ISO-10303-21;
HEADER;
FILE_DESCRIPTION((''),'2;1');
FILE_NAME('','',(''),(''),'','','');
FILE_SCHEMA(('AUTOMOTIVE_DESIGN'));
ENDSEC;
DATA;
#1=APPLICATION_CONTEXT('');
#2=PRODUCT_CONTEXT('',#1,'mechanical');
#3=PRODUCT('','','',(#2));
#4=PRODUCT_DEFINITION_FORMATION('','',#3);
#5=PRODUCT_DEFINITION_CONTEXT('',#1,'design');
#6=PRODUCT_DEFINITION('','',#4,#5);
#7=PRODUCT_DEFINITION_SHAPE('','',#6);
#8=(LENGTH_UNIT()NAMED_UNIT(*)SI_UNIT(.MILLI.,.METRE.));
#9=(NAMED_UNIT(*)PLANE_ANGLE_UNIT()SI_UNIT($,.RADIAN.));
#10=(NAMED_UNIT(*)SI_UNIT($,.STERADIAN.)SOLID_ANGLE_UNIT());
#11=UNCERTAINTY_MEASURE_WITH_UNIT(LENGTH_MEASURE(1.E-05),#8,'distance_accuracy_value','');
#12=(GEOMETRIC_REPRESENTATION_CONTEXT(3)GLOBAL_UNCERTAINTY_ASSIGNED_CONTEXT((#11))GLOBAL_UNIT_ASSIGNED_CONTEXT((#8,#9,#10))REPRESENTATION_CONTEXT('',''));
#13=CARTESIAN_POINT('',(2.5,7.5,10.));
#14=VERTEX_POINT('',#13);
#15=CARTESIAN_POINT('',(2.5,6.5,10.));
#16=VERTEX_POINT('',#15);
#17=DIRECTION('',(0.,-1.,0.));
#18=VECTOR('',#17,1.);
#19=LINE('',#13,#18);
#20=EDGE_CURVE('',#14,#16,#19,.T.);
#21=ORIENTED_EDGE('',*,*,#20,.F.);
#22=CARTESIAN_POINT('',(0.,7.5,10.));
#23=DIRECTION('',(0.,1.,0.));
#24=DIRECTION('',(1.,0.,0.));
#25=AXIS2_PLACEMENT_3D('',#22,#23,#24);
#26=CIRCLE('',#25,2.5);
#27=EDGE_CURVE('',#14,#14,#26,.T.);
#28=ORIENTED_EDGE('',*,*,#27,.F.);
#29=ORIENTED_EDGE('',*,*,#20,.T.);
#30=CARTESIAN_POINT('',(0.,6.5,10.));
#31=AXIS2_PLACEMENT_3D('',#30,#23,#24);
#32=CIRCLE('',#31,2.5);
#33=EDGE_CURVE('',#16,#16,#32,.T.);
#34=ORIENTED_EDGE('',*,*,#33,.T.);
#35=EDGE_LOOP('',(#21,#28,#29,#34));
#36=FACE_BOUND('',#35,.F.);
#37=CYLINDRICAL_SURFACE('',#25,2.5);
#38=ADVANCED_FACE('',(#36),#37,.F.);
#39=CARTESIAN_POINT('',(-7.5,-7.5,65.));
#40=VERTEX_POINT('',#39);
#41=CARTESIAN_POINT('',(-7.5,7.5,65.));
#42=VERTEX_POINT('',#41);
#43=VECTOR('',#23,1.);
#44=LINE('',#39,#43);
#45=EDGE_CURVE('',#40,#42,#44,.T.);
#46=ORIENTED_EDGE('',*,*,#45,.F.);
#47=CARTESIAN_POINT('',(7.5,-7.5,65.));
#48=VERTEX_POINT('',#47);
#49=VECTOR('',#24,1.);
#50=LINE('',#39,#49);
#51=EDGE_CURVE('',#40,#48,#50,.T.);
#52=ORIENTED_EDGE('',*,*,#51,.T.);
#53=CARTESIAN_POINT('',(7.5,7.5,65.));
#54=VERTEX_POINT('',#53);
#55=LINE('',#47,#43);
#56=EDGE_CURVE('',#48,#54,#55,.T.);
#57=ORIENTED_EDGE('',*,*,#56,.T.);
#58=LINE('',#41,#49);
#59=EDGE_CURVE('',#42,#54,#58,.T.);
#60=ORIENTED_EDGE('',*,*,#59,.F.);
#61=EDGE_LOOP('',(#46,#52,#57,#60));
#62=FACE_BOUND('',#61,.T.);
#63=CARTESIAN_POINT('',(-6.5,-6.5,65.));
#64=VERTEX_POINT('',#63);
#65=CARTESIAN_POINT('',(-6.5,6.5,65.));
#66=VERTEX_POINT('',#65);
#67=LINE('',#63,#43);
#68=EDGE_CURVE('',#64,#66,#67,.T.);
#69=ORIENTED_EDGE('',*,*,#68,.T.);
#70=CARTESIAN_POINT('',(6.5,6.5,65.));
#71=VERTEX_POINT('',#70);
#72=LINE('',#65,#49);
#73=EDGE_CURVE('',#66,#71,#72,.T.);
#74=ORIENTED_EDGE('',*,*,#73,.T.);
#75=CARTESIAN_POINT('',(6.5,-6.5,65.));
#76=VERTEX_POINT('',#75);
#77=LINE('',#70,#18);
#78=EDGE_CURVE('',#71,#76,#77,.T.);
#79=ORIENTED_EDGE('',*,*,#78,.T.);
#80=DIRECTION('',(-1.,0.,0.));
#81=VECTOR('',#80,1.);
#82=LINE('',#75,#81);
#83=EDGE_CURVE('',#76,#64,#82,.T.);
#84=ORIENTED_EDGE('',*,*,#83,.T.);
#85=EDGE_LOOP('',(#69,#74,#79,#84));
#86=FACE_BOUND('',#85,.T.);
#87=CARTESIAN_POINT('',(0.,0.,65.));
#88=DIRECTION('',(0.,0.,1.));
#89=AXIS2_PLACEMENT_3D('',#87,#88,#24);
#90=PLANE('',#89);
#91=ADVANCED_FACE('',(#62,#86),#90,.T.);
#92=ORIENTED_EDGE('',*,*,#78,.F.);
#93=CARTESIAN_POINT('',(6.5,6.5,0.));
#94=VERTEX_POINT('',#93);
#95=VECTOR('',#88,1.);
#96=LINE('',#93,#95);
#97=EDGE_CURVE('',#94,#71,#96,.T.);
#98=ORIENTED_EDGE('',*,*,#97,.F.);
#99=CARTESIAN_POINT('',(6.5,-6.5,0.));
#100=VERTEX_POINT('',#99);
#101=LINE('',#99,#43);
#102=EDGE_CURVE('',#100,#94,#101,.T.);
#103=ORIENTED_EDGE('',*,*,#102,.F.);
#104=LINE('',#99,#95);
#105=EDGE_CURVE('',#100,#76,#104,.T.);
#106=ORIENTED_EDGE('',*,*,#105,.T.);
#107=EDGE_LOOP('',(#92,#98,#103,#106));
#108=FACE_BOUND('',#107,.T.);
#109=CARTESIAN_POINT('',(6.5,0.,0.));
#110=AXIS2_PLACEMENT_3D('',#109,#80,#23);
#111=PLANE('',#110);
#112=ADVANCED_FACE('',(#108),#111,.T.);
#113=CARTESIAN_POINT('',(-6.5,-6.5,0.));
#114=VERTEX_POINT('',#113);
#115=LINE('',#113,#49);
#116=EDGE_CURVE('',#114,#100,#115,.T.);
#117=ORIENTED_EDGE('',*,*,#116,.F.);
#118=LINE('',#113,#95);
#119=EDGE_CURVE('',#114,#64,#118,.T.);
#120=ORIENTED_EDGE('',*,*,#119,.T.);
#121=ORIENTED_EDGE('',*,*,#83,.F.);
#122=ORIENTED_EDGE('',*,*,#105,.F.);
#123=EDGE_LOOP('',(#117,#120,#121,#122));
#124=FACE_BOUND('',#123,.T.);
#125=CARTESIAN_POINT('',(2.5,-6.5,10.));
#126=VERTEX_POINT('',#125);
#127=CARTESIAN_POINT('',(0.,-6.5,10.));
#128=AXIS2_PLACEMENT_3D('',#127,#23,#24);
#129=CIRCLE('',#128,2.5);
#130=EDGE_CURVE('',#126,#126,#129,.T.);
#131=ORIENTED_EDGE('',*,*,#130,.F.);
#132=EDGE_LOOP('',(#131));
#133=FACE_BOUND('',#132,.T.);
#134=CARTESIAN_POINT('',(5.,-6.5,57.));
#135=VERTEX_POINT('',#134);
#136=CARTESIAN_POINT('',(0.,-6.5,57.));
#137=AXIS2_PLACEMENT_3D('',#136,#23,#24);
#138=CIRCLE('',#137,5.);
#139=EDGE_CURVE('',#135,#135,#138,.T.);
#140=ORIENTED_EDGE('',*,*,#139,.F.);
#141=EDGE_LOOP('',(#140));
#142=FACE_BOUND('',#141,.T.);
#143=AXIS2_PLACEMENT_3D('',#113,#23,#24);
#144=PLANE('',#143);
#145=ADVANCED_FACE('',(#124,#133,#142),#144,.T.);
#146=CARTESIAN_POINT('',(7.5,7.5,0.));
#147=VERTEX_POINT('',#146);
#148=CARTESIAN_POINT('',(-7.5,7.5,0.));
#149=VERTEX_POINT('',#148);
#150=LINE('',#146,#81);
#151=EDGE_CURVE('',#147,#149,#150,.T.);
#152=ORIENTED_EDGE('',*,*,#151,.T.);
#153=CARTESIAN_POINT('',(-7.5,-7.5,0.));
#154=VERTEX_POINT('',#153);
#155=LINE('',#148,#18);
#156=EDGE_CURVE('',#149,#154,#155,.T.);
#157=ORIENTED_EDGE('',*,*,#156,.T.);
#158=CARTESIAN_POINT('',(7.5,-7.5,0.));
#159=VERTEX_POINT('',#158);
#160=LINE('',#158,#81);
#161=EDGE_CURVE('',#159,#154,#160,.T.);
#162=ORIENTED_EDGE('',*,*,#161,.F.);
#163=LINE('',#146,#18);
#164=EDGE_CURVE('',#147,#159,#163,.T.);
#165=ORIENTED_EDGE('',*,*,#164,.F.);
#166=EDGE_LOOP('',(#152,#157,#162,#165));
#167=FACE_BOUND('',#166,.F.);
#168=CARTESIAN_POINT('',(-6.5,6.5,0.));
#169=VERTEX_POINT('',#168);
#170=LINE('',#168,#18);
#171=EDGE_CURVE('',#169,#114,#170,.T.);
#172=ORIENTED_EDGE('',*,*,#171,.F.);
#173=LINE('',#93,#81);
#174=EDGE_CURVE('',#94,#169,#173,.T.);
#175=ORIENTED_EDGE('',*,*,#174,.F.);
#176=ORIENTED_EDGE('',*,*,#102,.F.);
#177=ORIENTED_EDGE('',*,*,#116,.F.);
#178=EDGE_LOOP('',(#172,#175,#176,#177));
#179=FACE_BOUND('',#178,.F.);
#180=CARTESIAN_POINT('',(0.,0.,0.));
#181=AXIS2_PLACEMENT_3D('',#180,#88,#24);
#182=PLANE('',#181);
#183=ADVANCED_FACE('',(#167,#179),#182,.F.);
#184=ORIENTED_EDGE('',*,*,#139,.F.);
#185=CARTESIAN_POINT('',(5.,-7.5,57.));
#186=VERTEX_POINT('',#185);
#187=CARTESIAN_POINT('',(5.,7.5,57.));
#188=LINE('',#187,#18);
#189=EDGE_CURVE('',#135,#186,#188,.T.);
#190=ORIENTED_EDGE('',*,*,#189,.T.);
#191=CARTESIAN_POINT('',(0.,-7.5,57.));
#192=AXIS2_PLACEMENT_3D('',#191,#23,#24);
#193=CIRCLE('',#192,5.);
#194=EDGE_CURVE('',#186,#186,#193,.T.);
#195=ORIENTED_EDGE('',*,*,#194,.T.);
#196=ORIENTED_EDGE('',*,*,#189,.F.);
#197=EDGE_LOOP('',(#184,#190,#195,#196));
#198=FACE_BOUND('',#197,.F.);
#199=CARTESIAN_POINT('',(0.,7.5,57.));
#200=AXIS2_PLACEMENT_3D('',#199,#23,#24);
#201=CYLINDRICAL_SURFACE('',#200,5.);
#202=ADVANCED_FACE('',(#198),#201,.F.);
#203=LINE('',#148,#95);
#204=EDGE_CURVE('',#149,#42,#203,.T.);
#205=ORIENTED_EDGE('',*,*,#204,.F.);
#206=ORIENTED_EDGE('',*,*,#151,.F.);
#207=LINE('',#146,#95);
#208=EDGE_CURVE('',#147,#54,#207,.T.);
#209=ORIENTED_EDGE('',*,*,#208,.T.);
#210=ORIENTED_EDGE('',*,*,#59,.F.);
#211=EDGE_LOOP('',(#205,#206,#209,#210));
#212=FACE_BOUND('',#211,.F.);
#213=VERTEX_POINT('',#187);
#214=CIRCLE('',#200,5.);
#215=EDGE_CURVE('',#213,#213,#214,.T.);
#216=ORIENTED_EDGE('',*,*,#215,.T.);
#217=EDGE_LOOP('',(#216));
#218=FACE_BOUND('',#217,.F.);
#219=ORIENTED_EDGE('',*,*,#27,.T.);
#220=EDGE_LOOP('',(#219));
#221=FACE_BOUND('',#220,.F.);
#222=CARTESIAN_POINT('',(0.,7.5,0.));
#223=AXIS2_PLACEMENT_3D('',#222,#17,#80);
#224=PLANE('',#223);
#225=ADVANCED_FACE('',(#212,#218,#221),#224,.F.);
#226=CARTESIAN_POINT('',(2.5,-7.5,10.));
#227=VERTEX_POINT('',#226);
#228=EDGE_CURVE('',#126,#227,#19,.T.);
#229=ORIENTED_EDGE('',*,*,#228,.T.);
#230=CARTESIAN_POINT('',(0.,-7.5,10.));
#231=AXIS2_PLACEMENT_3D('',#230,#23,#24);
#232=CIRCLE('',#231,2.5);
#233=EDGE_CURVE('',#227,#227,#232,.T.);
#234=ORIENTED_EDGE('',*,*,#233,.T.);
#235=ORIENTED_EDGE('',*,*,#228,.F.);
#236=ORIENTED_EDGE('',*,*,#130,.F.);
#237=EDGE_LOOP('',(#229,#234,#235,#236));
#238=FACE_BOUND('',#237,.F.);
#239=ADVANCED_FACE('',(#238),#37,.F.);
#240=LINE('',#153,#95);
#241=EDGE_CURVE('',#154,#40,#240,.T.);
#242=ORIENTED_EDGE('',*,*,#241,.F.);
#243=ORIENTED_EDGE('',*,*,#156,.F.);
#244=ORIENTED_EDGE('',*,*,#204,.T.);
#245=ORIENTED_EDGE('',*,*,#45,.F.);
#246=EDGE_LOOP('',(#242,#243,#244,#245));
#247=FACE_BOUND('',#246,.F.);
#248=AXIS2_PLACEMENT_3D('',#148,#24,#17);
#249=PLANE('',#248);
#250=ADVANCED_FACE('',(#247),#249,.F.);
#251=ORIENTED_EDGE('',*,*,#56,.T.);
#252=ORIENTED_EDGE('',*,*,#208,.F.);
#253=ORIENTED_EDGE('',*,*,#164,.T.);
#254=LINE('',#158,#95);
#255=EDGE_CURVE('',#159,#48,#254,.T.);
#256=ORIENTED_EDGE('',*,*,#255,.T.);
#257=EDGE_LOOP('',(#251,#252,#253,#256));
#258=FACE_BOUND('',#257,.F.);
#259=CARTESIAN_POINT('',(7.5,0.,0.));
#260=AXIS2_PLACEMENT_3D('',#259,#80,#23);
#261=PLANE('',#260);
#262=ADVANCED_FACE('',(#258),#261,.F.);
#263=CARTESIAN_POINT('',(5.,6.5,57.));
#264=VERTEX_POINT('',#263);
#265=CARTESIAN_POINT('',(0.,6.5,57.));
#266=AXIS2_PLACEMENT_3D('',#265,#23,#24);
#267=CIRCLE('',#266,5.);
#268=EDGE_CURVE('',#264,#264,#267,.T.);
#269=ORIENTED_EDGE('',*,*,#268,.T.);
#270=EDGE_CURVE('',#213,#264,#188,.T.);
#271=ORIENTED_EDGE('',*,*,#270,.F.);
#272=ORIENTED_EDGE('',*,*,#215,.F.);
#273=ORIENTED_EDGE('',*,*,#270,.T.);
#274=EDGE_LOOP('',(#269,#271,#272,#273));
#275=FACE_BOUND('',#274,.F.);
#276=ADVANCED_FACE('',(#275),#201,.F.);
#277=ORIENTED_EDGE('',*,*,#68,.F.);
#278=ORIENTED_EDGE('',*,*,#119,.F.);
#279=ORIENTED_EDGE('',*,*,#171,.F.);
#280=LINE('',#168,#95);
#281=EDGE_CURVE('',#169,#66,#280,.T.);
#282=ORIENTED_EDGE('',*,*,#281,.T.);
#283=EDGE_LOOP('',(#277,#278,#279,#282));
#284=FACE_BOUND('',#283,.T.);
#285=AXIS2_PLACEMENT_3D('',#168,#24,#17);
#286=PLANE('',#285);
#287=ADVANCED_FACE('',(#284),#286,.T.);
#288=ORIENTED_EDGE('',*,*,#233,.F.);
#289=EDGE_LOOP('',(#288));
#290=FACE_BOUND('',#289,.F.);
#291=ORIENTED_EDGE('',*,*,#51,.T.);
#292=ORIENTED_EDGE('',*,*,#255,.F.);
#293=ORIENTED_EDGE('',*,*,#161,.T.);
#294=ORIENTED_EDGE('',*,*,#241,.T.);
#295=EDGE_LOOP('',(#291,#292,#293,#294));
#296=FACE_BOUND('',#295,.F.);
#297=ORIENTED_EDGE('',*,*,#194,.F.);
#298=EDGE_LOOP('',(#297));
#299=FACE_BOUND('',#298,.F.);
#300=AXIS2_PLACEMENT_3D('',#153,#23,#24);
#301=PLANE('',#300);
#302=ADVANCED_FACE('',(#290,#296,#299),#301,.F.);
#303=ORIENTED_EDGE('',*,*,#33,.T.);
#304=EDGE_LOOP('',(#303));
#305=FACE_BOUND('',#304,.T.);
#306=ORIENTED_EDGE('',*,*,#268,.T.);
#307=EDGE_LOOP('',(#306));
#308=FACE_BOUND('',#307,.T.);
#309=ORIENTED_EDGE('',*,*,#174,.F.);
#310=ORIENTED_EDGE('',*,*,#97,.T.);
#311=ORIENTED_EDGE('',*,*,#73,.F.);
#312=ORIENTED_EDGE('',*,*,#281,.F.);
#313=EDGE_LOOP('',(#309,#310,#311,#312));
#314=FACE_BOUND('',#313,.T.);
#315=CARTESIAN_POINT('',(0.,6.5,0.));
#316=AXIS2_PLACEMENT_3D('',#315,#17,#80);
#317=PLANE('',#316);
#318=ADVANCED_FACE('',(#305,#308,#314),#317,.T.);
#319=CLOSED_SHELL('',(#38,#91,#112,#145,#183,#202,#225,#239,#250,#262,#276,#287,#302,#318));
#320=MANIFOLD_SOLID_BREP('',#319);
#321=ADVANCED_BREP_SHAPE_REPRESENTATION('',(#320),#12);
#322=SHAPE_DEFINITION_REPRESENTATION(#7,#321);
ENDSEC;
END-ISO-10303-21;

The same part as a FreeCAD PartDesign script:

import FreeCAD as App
import Part
import Sketcher
from FreeCAD import Vector
Q = App.Units.Quantity


def add_polygon(sketch, points):
    """Adds a closed chain of lines whose ends are joined by coincident constraints."""
    first, n = sketch.GeometryCount, len(points)
    for a, b in zip(points, points[1:] + points[:1]):
        sketch.addGeometry(Part.LineSegment(App.Vector(*a, 0), App.Vector(*b, 0)), False)
    for i in range(n):
        sketch.addConstraint(Sketcher.Constraint("Coincident", first + i, 2, first + (i + 1) % n, 1))

doc = App.newDocument("Part")
body = doc.addObject("PartDesign::Body", "Body")

sketch1 = body.newObject("Sketcher::SketchObject", "Sketch")
sketch1.AttachmentSupport = (doc.getObject("XY_Plane"), [""])
sketch1.MapMode = "FlatFace"
add_polygon(sketch1, [(-8, 8), (-8, -8), (8, -8), (8, 8)])
add_polygon(sketch1, [(-6, 6), (6, 6), (6, -6), (-6, -6)])
sketch1.addConstraint([
    Sketcher.Constraint("Vertical", 0),
    Sketcher.Constraint("Horizontal", 1),
    Sketcher.Constraint("Vertical", 2),
    Sketcher.Constraint("Horizontal", 3),
    Sketcher.Constraint("Horizontal", 4),
    Sketcher.Constraint("Vertical", 5),
    Sketcher.Constraint("Horizontal", 6),
    Sketcher.Constraint("Vertical", 7),
    Sketcher.Constraint("Symmetric", 0, 2, 2, 2, -1, 1),
    Sketcher.Constraint("Symmetric", 4, 2, 6, 2, -1, 1),
    Sketcher.Constraint("Equal", 3, 0),
    Sketcher.Constraint("Equal", 6, 5),
    Sketcher.Constraint("DistanceX", 1, 1, 1, 2, Q("15 mm")),
    Sketcher.Constraint("DistanceX", 4, 1, 4, 2, Q("13 mm")),
])
pad1 = body.newObject("PartDesign::Pad", "Pad")
pad1.Profile = sketch1
pad1.Length = 65

sketch2 = body.newObject("Sketcher::SketchObject", "Sketch001")
sketch2.AttachmentSupport = (doc.getObject("XZ_Plane"), [""])
sketch2.MapMode = "FlatFace"
sketch2.AttachmentOffset = App.Placement(Vector(0, 0, -7.5), App.Rotation())
sketch2.addGeometry([
    Part.Circle(Vector(0, 57, 0), Vector(0, 0, 1), 5),
    Part.Circle(Vector(0, 10, 0), Vector(0, 0, 1), 2.5),
], False)
sketch2.addConstraint([
    Sketcher.Constraint("PointOnObject", 0, 3, -2),
    Sketcher.Constraint("PointOnObject", 1, 3, -2),
    Sketcher.Constraint("Diameter", 0, Q("10 mm")),
    Sketcher.Constraint("Diameter", 1, Q("5 mm")),
    Sketcher.Constraint("DistanceY", -1, 1, 1, 3, Q("10 mm")),
    Sketcher.Constraint("DistanceY", -1, 1, 0, 3, Q("57 mm")),
])
pocket1 = body.newObject("PartDesign::Pocket", "Pocket")
pocket1.Profile = sketch2
pocket1.Length = 15
pocket1.Reversed = True

doc.recompute()
